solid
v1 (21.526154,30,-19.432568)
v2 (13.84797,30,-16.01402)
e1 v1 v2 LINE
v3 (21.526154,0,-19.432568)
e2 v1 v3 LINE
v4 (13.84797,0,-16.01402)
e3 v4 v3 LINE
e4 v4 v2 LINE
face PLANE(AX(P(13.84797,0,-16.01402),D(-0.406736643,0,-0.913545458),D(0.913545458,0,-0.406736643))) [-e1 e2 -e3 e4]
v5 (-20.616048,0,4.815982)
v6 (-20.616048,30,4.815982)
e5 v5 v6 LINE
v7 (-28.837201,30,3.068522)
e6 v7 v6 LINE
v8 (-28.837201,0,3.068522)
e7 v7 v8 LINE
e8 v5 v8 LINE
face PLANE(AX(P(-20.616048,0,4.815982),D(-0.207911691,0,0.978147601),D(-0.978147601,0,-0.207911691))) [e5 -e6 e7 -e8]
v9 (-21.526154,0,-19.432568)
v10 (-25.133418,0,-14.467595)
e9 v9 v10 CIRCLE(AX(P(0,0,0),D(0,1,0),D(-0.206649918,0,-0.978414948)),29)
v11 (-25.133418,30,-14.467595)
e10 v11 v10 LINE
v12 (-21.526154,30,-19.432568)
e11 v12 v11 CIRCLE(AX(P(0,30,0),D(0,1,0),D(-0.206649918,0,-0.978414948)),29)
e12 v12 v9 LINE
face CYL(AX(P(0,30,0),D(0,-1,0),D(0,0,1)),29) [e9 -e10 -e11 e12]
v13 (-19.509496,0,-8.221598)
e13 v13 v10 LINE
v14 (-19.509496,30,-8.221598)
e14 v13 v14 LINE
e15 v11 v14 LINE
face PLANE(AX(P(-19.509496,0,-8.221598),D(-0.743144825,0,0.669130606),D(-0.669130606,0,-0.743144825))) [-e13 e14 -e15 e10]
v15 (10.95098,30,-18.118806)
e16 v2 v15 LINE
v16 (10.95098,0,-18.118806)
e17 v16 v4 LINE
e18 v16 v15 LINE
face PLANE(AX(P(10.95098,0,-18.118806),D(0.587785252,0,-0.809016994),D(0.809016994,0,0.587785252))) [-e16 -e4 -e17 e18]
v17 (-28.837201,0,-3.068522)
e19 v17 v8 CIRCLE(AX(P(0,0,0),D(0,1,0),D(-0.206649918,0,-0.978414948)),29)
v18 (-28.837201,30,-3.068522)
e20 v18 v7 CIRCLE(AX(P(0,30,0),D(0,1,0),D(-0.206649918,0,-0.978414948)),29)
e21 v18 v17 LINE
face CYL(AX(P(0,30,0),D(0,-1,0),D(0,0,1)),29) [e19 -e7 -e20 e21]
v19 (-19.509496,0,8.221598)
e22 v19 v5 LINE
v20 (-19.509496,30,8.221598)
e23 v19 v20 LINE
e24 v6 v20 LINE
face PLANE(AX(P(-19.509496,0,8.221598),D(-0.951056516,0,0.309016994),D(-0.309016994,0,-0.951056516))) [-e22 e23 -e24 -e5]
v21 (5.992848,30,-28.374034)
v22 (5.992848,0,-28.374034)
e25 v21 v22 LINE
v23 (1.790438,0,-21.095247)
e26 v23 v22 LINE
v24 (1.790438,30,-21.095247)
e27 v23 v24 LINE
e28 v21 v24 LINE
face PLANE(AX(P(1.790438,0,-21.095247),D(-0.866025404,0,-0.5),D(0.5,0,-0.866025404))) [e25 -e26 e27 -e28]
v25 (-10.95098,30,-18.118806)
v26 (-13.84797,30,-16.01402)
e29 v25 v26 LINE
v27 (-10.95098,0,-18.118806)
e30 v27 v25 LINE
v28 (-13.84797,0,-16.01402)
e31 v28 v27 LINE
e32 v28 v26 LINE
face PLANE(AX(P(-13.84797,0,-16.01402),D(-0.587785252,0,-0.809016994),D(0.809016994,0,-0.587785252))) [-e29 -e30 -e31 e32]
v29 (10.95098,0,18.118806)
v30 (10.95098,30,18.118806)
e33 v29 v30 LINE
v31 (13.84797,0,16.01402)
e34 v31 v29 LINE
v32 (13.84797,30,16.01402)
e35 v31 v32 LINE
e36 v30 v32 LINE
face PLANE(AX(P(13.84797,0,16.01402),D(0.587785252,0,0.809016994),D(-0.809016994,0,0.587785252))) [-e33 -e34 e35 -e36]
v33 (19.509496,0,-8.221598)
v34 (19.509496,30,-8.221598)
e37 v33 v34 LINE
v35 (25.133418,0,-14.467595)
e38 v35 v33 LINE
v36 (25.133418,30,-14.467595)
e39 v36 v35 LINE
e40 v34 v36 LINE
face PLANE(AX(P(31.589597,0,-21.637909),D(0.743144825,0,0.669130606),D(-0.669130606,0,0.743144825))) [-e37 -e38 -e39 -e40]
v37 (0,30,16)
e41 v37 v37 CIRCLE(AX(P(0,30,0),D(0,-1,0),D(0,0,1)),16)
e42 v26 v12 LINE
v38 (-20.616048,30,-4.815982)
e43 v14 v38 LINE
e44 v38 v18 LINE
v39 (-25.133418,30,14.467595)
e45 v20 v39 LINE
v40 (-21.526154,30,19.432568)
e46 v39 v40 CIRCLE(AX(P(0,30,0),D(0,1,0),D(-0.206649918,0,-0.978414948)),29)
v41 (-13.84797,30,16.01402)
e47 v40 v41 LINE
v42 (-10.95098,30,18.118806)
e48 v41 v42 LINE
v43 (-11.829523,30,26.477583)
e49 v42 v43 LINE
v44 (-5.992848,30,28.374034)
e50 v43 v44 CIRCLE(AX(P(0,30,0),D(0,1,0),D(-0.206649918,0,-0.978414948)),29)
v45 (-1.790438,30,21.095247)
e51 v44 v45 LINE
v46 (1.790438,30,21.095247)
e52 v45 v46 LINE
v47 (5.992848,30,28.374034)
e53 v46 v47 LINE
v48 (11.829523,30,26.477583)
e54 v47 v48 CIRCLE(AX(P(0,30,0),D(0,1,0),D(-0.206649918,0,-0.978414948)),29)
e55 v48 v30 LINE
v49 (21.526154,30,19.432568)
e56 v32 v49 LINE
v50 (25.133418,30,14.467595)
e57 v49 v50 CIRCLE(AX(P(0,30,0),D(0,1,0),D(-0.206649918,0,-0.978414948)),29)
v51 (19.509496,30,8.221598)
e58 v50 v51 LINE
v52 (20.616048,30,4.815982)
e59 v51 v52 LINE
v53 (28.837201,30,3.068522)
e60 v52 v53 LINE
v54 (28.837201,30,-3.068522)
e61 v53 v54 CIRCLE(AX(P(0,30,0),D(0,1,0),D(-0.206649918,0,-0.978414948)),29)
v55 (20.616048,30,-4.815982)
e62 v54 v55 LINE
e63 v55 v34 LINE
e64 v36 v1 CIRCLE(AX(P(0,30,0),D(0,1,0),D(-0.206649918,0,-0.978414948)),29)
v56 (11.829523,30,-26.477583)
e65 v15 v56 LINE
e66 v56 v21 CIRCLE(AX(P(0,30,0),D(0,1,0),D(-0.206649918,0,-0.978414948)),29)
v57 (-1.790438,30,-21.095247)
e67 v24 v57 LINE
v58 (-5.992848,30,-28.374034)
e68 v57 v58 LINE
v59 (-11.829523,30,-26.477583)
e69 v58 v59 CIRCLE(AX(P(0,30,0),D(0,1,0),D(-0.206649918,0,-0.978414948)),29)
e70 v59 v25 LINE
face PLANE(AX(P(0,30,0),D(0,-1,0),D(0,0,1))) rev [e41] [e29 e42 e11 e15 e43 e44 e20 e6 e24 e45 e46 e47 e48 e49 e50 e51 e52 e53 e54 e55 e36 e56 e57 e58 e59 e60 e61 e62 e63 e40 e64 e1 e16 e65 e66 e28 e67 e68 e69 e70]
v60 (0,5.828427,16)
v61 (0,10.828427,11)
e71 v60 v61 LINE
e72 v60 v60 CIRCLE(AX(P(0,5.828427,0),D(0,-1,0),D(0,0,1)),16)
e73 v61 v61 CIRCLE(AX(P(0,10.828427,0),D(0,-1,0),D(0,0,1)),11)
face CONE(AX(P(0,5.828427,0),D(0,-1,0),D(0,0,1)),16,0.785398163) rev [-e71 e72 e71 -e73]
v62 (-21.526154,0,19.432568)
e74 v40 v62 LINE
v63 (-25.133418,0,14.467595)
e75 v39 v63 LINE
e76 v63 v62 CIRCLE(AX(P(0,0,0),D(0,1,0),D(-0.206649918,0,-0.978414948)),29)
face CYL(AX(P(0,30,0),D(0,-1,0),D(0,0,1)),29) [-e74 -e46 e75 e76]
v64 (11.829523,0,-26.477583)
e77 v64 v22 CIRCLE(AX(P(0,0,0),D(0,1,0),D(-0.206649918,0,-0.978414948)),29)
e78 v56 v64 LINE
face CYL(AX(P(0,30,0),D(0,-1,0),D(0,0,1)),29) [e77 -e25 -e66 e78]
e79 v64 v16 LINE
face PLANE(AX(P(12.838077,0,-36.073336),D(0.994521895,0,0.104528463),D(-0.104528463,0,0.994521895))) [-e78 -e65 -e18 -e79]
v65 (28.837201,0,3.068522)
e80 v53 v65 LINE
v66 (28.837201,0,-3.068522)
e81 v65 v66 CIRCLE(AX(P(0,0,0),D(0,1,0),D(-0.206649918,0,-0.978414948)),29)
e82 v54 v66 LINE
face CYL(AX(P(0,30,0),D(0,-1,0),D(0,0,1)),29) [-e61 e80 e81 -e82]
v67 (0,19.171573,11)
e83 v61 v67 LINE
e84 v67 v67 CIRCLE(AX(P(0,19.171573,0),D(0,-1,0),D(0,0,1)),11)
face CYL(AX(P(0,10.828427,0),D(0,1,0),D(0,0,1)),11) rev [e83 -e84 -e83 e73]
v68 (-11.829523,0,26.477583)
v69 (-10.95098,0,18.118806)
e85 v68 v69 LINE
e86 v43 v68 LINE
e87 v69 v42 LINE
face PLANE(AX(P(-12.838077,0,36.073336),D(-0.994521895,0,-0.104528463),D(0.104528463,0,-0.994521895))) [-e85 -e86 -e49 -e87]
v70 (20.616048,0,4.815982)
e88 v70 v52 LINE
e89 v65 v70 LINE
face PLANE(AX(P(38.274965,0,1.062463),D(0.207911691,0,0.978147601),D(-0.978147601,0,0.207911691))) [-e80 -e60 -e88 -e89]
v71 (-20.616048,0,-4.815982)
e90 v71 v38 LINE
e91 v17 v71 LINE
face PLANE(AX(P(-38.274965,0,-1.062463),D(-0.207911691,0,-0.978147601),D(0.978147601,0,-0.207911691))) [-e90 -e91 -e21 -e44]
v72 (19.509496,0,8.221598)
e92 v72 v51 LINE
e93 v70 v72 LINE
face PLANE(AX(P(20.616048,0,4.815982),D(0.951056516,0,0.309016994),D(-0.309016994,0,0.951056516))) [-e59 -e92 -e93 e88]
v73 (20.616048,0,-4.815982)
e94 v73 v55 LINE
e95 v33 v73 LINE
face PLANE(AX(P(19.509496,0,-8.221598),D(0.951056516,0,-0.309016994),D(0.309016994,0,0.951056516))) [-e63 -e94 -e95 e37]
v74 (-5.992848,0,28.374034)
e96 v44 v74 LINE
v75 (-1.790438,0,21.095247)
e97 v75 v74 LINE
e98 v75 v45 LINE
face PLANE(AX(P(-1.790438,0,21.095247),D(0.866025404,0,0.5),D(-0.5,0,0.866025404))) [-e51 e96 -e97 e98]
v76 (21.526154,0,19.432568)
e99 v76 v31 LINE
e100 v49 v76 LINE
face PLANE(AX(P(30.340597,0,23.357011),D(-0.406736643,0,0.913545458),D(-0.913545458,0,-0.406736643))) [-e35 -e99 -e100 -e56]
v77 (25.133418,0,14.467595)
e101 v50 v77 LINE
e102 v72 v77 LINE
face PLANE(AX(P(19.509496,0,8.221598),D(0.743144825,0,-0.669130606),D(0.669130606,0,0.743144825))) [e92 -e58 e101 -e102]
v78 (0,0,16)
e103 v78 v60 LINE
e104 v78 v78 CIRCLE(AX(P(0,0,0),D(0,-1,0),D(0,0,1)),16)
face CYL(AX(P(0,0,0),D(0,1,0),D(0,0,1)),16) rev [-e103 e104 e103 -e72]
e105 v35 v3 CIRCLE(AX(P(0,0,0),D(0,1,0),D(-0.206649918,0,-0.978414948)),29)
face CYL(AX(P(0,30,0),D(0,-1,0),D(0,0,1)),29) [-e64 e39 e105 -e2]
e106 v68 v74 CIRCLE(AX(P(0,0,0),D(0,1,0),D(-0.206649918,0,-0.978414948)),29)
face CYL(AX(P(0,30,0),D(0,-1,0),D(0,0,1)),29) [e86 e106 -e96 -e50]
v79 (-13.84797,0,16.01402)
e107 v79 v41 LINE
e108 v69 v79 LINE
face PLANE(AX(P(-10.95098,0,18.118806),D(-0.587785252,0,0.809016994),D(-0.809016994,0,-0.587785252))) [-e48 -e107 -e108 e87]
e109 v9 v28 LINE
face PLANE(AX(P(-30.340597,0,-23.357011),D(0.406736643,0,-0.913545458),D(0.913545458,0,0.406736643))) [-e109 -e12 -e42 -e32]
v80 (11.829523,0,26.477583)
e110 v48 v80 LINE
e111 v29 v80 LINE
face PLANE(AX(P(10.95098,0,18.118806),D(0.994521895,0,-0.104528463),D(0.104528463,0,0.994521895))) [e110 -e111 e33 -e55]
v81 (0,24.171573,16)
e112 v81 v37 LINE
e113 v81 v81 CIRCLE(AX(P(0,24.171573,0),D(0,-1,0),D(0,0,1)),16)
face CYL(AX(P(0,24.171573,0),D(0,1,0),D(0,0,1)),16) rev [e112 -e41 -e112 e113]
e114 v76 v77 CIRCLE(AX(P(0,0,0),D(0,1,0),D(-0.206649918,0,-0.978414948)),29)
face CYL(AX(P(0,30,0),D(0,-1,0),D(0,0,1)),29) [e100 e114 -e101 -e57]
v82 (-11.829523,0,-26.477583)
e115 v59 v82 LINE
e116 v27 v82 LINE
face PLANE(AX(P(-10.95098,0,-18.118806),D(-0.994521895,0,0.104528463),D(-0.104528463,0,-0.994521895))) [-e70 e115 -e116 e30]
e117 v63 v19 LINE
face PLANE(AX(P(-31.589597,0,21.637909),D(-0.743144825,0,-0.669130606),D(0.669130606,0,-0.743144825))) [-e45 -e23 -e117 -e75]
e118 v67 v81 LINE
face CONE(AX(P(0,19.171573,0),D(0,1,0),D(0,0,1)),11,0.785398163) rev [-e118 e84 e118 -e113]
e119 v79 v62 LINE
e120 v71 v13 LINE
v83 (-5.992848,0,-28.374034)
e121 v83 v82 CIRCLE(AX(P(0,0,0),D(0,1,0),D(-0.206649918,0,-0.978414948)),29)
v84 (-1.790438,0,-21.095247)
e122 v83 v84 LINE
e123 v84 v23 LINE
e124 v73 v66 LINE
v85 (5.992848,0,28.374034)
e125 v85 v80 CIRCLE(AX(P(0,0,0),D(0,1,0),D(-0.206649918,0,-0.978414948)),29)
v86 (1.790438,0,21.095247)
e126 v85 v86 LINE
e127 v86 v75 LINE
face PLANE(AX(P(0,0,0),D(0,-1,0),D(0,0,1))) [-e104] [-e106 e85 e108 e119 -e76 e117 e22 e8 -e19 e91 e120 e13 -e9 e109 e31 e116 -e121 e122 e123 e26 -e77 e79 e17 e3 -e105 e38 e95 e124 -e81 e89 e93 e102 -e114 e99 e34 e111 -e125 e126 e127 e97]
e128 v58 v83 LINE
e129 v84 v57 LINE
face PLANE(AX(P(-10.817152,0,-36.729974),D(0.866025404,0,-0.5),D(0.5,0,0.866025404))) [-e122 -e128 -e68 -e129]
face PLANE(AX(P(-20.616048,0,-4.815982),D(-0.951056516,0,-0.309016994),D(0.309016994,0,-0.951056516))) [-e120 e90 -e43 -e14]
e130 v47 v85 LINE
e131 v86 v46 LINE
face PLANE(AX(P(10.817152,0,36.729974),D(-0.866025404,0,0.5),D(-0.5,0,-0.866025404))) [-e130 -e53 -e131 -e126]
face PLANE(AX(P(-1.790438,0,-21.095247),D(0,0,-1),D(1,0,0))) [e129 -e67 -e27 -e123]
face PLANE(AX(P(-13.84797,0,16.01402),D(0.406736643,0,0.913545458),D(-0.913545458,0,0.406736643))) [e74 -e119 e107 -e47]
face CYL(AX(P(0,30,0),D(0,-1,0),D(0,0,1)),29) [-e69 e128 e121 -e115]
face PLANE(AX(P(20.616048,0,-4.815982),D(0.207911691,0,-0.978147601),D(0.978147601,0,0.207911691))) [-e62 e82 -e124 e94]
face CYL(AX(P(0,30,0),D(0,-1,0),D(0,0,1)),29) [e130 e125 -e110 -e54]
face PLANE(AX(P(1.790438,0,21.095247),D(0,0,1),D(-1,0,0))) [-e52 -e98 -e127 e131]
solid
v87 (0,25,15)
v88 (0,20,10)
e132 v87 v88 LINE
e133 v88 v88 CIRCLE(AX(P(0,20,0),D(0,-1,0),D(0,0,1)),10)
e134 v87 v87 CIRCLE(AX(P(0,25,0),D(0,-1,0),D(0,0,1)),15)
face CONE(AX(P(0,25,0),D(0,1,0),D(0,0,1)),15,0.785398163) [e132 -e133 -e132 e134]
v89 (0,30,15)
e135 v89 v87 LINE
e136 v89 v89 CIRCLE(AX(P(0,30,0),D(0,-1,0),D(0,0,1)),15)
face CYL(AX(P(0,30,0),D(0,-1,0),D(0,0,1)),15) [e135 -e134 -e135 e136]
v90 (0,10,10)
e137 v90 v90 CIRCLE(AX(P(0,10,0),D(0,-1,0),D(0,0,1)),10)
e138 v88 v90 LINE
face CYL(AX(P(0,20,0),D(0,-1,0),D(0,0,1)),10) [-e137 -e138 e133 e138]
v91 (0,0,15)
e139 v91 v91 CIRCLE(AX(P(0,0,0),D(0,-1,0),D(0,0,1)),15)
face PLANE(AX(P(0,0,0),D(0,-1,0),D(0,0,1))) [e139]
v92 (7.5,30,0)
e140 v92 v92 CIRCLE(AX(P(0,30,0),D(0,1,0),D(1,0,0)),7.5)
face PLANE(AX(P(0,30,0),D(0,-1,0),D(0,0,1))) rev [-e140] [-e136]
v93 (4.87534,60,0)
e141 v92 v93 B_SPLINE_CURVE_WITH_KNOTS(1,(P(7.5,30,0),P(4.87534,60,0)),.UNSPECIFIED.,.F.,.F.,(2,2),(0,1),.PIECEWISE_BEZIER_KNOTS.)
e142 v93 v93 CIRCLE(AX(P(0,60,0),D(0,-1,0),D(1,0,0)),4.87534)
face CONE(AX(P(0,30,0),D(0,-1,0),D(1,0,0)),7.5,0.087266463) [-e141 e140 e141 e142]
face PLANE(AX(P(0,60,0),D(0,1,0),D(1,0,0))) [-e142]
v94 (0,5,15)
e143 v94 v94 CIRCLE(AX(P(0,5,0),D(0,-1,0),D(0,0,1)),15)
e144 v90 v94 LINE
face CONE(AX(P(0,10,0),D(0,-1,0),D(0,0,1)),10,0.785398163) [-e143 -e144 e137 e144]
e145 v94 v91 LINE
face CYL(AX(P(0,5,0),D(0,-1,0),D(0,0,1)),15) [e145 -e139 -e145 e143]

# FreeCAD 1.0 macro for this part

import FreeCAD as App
import Part
import Sketcher
Q = App.Units.Quantity

doc = App.newDocument("Part")
body = doc.addObject("PartDesign::Body", "Body")

sketch1 = doc.addObject("Sketcher::SketchObject", "Sketch")
body.addObject(sketch1)
sketch1.AttachmentSupport = (doc.XY_Plane, [""])
sketch1.MapMode = "FlatFace"
sketch1.addGeometry(Part.LineSegment(App.Vector(15, 25, 0), App.Vector(15, 30, 0)), False)
sketch1.addGeometry(Part.LineSegment(App.Vector(15, 30, 0), App.Vector(0, 30, 0)), False)
sketch1.addGeometry(Part.LineSegment(App.Vector(0, 30, 0), App.Vector(0, 0, 0)), False)
sketch1.addGeometry(Part.LineSegment(App.Vector(0, 0, 0), App.Vector(15, 0, 0)), False)
sketch1.addGeometry(Part.LineSegment(App.Vector(15, 0, 0), App.Vector(15, 5, 0)), False)
sketch1.addGeometry(Part.LineSegment(App.Vector(15, 5, 0), App.Vector(10, 10, 0)), False)
sketch1.addGeometry(Part.LineSegment(App.Vector(10, 10, 0), App.Vector(10, 20, 0)), False)
sketch1.addGeometry(Part.LineSegment(App.Vector(10, 20, 0), App.Vector(15, 25, 0)), False)
sketch1.addConstraint(Sketcher.Constraint("Coincident", 0, 2, 1, 1))
sketch1.addConstraint(Sketcher.Constraint("Coincident", 1, 2, 2, 1))
sketch1.addConstraint(Sketcher.Constraint("Coincident", 2, 2, 3, 1))
sketch1.addConstraint(Sketcher.Constraint("Coincident", 3, 2, 4, 1))
sketch1.addConstraint(Sketcher.Constraint("Coincident", 4, 2, 5, 1))
sketch1.addConstraint(Sketcher.Constraint("Coincident", 5, 2, 6, 1))
sketch1.addConstraint(Sketcher.Constraint("Coincident", 6, 2, 7, 1))
sketch1.addConstraint(Sketcher.Constraint("Coincident", 7, 2, 0, 1))
sketch1.addConstraint(Sketcher.Constraint("Vertical", 0))
sketch1.addConstraint(Sketcher.Constraint("Horizontal", 1))
sketch1.addConstraint(Sketcher.Constraint("Vertical", 2))
sketch1.addConstraint(Sketcher.Constraint("Horizontal", 3))
sketch1.addConstraint(Sketcher.Constraint("Vertical", 4))
sketch1.addConstraint(Sketcher.Constraint("Vertical", 6))
sketch1.addConstraint(Sketcher.Constraint("Coincident", 2, 2, -1, 1))
sketch1.addConstraint(Sketcher.Constraint("Perpendicular", 5, 7))
sketch1.addConstraint(Sketcher.Constraint("Vertical", 0, 2, 3, 2))
sketch1.addConstraint(Sketcher.Constraint("Equal", 0, 4))
sketch1.addConstraint(Sketcher.Constraint("Equal", 5, 7))
sketch1.addConstraint(Sketcher.Constraint("DistanceX", 1, 2, 1, 1, Q("15 mm")))
sketch1.addConstraint(Sketcher.Constraint("DistanceY", 0, 1, 0, 2, Q("5 mm")))
sketch1.addConstraint(Sketcher.Constraint("DistanceY", 2, 2, 2, 1, Q("30 mm")))
sketch1.addConstraint(Sketcher.Constraint("DistanceY", 6, 1, 6, 2, Q("10 mm")))
revolution = doc.addObject("PartDesign::Revolution", "Revolution")
body.addObject(revolution)
revolution.Profile = sketch1
revolution.ReferenceAxis = (sketch1, ["V_Axis"])
revolution.Angle = 360

sketch2 = doc.addObject("Sketcher::SketchObject", "Sketch001")
body.addObject(sketch2)
sketch2.AttachmentSupport = (doc.XZ_Plane, [""])
sketch2.MapMode = "FlatFace"
sketch2.AttachmentOffset = App.Placement(App.Vector(0, 0, -30), App.Rotation())
sketch2.addGeometry(Part.Circle(App.Vector(0, 0, 0), App.Vector(0, 0, 1), 7.5), False)
sketch2.addConstraint(Sketcher.Constraint("Coincident", 0, 3, -1, 1))
sketch2.addConstraint(Sketcher.Constraint("Diameter", 0, Q("15 mm")))
pad1 = doc.addObject("PartDesign::Pad", "Pad")
body.addObject(pad1)
pad1.Profile = sketch2
pad1.Length = 30
pad1.Reversed = True
pad1.TaperAngle = -5
body2 = doc.addObject("PartDesign::Body", "Body001")

sketch3 = doc.addObject("Sketcher::SketchObject", "Sketch002")
body2.addObject(sketch3)
sketch3.AttachmentSupport = (doc.getObject("XY_Plane001"), [""])
sketch3.MapMode = "FlatFace"
sketch3.addGeometry(Part.LineSegment(App.Vector(29, 30, 0), App.Vector(16, 30, 0)), False)
sketch3.addGeometry(Part.LineSegment(App.Vector(16, 30, 0), App.Vector(16, 24.171573, 0)), False)
sketch3.addGeometry(Part.LineSegment(App.Vector(16, 24.171573, 0), App.Vector(11, 19.171573, 0)), False)
sketch3.addGeometry(Part.LineSegment(App.Vector(11, 19.171573, 0), App.Vector(11, 10.828427, 0)), False)
sketch3.addGeometry(Part.LineSegment(App.Vector(11, 10.828427, 0), App.Vector(16, 5.828427, 0)), False)
sketch3.addGeometry(Part.LineSegment(App.Vector(16, 5.828427, 0), App.Vector(16, 0, 0)), False)
sketch3.addGeometry(Part.LineSegment(App.Vector(16, 0, 0), App.Vector(29, 0, 0)), False)
sketch3.addGeometry(Part.LineSegment(App.Vector(29, 0, 0), App.Vector(29, 30, 0)), False)
sketch3.addConstraint(Sketcher.Constraint("Coincident", 0, 2, 1, 1))
sketch3.addConstraint(Sketcher.Constraint("Coincident", 1, 2, 2, 1))
sketch3.addConstraint(Sketcher.Constraint("Coincident", 2, 2, 3, 1))
sketch3.addConstraint(Sketcher.Constraint("Coincident", 3, 2, 4, 1))
sketch3.addConstraint(Sketcher.Constraint("Coincident", 4, 2, 5, 1))
sketch3.addConstraint(Sketcher.Constraint("Coincident", 5, 2, 6, 1))
sketch3.addConstraint(Sketcher.Constraint("Coincident", 6, 2, 7, 1))
sketch3.addConstraint(Sketcher.Constraint("Coincident", 7, 2, 0, 1))
sketch3.addConstraint(Sketcher.Constraint("Horizontal", 0))
sketch3.addConstraint(Sketcher.Constraint("Vertical", 1))
sketch3.addConstraint(Sketcher.Constraint("Vertical", 3))
sketch3.addConstraint(Sketcher.Constraint("Vertical", 5))
sketch3.addConstraint(Sketcher.Constraint("Horizontal", 6))
sketch3.addConstraint(Sketcher.Constraint("Vertical", 7))
sketch3.addConstraint(Sketcher.Constraint("PointOnObject", 5, 2, -1))
sketch3.addConstraint(Sketcher.Constraint("Perpendicular", 2, 4))
sketch3.addConstraint(Sketcher.Constraint("Vertical", 1, 2, 4, 2))
sketch3.addConstraint(Sketcher.Constraint("Equal", 1, 5))
sketch3.addConstraint(Sketcher.Constraint("Equal", 2, 4))
sketch3.addConstraint(Sketcher.Constraint("DistanceX", 0, 2, 0, 1, Q("13 mm")))
sketch3.addConstraint(Sketcher.Constraint("DistanceY", 7, 1, 7, 2, Q("30 mm")))
sketch3.addConstraint(Sketcher.Constraint("DistanceX", -1, 1, 0, 2, Q("16 mm")))
sketch3.addConstraint(Sketcher.Constraint("DistanceX", -1, 1, 2, 2, Q("11 mm")))
sketch3.addConstraint(Sketcher.Constraint("DistanceY", 1, 2, 1, 1, Q("5.828427 mm")))
revolution2 = doc.addObject("PartDesign::Revolution", "Revolution001")
body2.addObject(revolution2)
revolution2.Profile = sketch3
revolution2.ReferenceAxis = (sketch3, ["V_Axis"])
revolution2.Angle = 360

sketch4 = doc.addObject("Sketcher::SketchObject", "Sketch003")
body2.addObject(sketch4)
sketch4.AttachmentSupport = (doc.getObject("XZ_Plane001"), [""])
sketch4.MapMode = "FlatFace"
sketch4.addGeometry(Part.LineSegment(App.Vector(1.790438, -21.095247, 0), App.Vector(-1.790438, -21.095247, 0)), False)
sketch4.addGeometry(Part.LineSegment(App.Vector(-1.790438, -21.095247, 0), App.Vector(-10.817152, -36.729974, 0)), False)
sketch4.addGeometry(Part.LineSegment(App.Vector(-10.817152, -36.729974, 0), App.Vector(10.817152, -36.729974, 0)), False)
sketch4.addGeometry(Part.LineSegment(App.Vector(10.817152, -36.729974, 0), App.Vector(1.790438, -21.095247, 0)), False)
sketch4.addConstraint(Sketcher.Constraint("Coincident", 0, 2, 1, 1))
sketch4.addConstraint(Sketcher.Constraint("Coincident", 1, 2, 2, 1))
sketch4.addConstraint(Sketcher.Constraint("Coincident", 2, 2, 3, 1))
sketch4.addConstraint(Sketcher.Constraint("Coincident", 3, 2, 0, 1))
sketch4.addConstraint(Sketcher.Constraint("Horizontal", 0))
sketch4.addConstraint(Sketcher.Constraint("Horizontal", 2))
sketch4.addConstraint(Sketcher.Constraint("Equal", 1, 3))
sketch4.addConstraint(Sketcher.Constraint("Angle", 1, Q("-120 deg")))
sketch4.addConstraint(Sketcher.Constraint("Distance", 1, Q("18.053428 mm")))
sketch4.addConstraint(Sketcher.Constraint("DistanceX", 0, 2, 0, 1, Q("3.580876 mm")))
sketch4.addConstraint(Sketcher.Constraint("DistanceX", 0, 2, -1, 1, Q("1.790438 mm")))
sketch4.addConstraint(Sketcher.Constraint("DistanceY", 0, 2, -1, 1, Q("21.095247 mm")))
pocket1 = doc.addObject("PartDesign::Pocket", "Pocket")
body2.addObject(pocket1)
pocket1.Profile = sketch4
pocket1.Type = "ThroughAll"
doc.recompute()

polarpattern = doc.addObject("PartDesign::PolarPattern", "PolarPattern")
body2.addObject(polarpattern)
polarpattern.Originals = [pocket1]
polarpattern.Axis = (doc.getObject("Y_Axis001"), [""])
polarpattern.Angle = 360
polarpattern.Occurrences = 10
body2.Tip = polarpattern

doc.recompute()
